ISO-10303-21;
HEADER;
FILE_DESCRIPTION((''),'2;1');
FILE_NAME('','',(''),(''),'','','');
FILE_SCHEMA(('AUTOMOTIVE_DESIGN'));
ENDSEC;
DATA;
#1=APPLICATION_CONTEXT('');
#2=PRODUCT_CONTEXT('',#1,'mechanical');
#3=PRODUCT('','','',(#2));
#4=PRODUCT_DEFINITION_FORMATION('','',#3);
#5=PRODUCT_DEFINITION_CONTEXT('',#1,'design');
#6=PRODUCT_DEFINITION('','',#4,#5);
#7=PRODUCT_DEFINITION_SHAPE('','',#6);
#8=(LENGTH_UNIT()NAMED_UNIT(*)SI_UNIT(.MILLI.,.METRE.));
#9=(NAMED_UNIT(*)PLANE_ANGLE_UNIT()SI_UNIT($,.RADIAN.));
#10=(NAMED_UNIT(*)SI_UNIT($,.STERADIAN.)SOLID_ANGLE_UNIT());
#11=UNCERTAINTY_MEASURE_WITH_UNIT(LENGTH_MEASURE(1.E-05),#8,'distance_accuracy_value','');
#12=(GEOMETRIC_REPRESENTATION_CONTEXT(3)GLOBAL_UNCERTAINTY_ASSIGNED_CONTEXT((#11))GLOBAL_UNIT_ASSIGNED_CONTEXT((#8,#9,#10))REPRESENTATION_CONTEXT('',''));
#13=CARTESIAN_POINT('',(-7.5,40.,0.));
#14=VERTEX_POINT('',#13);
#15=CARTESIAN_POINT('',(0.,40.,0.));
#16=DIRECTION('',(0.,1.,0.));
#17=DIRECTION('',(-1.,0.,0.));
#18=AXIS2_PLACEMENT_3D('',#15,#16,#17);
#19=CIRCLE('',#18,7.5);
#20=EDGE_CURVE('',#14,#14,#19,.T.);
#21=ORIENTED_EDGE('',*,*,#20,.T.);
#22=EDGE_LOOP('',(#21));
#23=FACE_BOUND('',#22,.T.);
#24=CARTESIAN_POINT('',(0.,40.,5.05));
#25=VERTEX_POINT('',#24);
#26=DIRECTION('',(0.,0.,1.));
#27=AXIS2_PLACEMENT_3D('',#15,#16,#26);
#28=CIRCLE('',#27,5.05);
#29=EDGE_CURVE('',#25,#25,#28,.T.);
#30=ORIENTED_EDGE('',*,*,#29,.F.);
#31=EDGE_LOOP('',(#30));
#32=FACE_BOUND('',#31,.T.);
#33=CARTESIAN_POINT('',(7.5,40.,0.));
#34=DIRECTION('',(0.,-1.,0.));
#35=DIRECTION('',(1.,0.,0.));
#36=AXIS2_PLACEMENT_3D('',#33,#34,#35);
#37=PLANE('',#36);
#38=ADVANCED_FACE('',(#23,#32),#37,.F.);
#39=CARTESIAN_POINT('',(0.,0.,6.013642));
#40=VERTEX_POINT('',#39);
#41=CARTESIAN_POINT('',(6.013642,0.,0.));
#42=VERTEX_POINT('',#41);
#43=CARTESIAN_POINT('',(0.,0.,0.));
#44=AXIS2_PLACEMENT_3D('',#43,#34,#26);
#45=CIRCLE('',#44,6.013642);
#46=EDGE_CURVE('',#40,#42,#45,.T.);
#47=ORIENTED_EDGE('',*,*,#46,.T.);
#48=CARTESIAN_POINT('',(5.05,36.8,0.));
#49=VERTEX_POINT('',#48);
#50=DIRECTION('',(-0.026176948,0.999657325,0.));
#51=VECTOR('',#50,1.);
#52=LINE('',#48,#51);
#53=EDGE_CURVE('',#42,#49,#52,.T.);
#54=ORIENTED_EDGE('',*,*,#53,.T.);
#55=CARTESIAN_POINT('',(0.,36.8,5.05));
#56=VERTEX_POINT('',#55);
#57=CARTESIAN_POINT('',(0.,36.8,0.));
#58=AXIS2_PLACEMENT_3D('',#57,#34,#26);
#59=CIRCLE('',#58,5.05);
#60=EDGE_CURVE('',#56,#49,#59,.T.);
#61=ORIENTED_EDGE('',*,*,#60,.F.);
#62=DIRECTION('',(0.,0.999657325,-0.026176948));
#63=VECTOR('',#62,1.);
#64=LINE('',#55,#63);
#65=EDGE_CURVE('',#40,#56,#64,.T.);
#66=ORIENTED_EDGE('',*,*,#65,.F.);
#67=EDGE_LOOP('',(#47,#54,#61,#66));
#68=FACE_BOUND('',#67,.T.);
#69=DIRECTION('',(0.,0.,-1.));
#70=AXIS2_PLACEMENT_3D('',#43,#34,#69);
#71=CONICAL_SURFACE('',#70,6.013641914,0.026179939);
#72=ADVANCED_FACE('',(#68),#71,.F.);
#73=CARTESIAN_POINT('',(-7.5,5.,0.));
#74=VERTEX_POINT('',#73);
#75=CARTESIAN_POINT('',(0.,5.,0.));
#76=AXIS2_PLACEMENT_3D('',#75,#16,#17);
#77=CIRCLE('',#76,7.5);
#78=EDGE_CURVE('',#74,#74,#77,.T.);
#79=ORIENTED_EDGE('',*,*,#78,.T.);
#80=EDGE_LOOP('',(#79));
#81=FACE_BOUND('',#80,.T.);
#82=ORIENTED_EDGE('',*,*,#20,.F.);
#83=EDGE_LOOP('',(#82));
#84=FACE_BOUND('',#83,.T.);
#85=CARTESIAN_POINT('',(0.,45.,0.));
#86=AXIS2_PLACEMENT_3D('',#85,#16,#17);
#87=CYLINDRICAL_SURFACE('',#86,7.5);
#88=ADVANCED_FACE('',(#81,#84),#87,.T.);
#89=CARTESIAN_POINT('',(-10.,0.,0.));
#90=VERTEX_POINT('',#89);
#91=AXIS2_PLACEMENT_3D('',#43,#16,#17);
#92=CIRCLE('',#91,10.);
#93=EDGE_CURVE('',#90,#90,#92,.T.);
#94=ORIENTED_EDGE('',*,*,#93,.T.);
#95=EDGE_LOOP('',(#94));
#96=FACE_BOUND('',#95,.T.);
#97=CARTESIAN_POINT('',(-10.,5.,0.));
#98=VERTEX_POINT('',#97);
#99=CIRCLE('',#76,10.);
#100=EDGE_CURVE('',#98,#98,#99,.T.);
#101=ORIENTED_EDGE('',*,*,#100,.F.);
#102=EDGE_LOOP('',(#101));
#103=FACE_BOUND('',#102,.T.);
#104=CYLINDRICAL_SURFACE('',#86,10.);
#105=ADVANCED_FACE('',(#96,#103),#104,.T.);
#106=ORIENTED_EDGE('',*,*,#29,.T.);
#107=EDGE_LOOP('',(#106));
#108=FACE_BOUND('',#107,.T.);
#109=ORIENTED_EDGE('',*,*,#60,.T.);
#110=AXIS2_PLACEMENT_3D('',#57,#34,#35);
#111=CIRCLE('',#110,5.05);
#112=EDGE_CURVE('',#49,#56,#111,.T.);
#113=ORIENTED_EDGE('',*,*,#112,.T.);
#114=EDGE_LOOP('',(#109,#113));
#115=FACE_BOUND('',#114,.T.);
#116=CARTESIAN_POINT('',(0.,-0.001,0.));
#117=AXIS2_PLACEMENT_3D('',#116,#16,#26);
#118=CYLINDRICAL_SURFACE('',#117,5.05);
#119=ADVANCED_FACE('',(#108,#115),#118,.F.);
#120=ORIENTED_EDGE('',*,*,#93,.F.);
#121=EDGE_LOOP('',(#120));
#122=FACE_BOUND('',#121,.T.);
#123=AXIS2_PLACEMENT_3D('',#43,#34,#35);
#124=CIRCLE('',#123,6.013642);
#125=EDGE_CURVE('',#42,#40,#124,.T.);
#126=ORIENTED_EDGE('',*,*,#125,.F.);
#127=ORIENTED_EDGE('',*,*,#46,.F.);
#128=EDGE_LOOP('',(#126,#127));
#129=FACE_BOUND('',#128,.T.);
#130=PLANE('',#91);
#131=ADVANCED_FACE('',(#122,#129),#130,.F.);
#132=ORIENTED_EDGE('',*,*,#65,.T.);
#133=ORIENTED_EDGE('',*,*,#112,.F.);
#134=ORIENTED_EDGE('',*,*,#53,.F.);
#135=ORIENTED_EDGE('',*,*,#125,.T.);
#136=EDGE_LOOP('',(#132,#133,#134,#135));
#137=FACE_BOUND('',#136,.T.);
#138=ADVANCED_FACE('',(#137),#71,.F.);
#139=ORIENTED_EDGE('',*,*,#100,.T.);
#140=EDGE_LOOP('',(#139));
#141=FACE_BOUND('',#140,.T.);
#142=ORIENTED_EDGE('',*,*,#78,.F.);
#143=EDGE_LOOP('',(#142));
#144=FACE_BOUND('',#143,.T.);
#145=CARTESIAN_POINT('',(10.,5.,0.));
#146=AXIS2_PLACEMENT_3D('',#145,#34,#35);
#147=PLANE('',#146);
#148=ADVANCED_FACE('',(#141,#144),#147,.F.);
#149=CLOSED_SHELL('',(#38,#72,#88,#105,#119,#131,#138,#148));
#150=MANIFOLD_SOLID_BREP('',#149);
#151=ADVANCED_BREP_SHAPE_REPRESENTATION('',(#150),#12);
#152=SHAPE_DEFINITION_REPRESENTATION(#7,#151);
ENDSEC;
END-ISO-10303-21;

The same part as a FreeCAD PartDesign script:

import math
import FreeCAD as App
import Part
import Sketcher
Q = App.Units.Quantity

doc = App.newDocument("Part")
params = doc.addObject("Spreadsheet::Sheet", "Params")
for row, (alias, value) in enumerate([
    ("sketch1_width", "10 mm"),
    ("sketch1_height", "5 mm"),
    ("sketch1_height2", "35 mm"),
    ("sketch1_width2", "2.5 mm"),
    ("revolution_angle", "360 deg"),
    ("sketch2_diameter", "10.1 mm"),
    ("sketch3_height", "36.8 mm"),
    ("sketch4_radius", "5.05 mm"),
], start=1):
    params.set(f"A{row}", alias)
    params.set(f"B{row}", "=" + value)
    params.setAlias(f"B{row}", alias)

body = doc.addObject("PartDesign::Body", "Body")

sketch1 = doc.addObject("Sketcher::SketchObject", "Sketch")
body.addObject(sketch1)
sketch1.AttachmentSupport = (doc.XY_Plane, [""])
sketch1.MapMode = "FlatFace"
sketch1.addGeometry([
    Part.LineSegment(App.Vector(0, 0, 0), App.Vector(10, 0, 0)),
    Part.LineSegment(App.Vector(10, 0, 0), App.Vector(10, 5, 0)),
    Part.LineSegment(App.Vector(10, 5, 0), App.Vector(7.5, 5, 0)),
    Part.LineSegment(App.Vector(7.5, 5, 0), App.Vector(7.5, 40, 0)),
    Part.LineSegment(App.Vector(7.5, 40, 0), App.Vector(0, 40, 0)),
    Part.LineSegment(App.Vector(0, 40, 0), App.Vector(0, 0, 0)),
], False)
sketch1.addConstraint([
    Sketcher.Constraint("Coincident", 0, 2, 1, 1),
    Sketcher.Constraint("Coincident", 1, 2, 2, 1),
    Sketcher.Constraint("Coincident", 2, 2, 3, 1),
    Sketcher.Constraint("Coincident", 3, 2, 4, 1),
    Sketcher.Constraint("Coincident", 4, 2, 5, 1),
    Sketcher.Constraint("Coincident", 5, 2, 0, 1),
    Sketcher.Constraint("Horizontal", 0),
    Sketcher.Constraint("Vertical", 1),
    Sketcher.Constraint("Horizontal", 2),
    Sketcher.Constraint("Vertical", 3),
    Sketcher.Constraint("Horizontal", 4),
    Sketcher.Constraint("Vertical", 5),
    Sketcher.Constraint("Coincident", 5, 2, -1, 1),
    Sketcher.Constraint("DistanceX", 0, 1, 0, 2, 10.0),
    Sketcher.Constraint("DistanceY", 1, 1, 1, 2, 5.0),
    Sketcher.Constraint("DistanceY", 3, 1, 3, 2, 35.0),
    Sketcher.Constraint("DistanceX", 2, 2, 2, 1, 2.5),
])
sketch1.setExpression("Constraints[13]", "Params.sketch1_width")
sketch1.setExpression("Constraints[14]", "Params.sketch1_height")
sketch1.setExpression("Constraints[15]", "Params.sketch1_height2")
sketch1.setExpression("Constraints[16]", "Params.sketch1_width2")
revolution = doc.addObject("PartDesign::Revolution", "Revolution")
body.addObject(revolution)
revolution.Profile = sketch1
revolution.ReferenceAxis = (sketch1, ["V_Axis"])
revolution.setExpression("Angle", "Params.revolution_angle")

sketch2 = doc.addObject("Sketcher::SketchObject", "Sketch001")
body.addObject(sketch2)
sketch2.AttachmentSupport = (doc.XZ_Plane, [""])
sketch2.MapMode = "FlatFace"
sketch2.AttachmentOffset = App.Placement(App.Vector(0, 0, -40), App.Rotation())
sketch2.addGeometry(Part.Circle(App.Vector(0, 0, 0), App.Vector(0, 0, 1), 5), False)
sketch2.addConstraint([
    Sketcher.Constraint("Coincident", 0, 3, -1, 1),
    Sketcher.Constraint("Diameter", 0, 10.1),
])
sketch2.setExpression("Constraints[1]", "Params.sketch2_diameter")
pocket1 = doc.addObject("PartDesign::Pocket", "Pocket")
body.addObject(pocket1)
pocket1.Profile = sketch2
pocket1.Type = "UpToFirst"
pocket1.Reversed = True

sketch3 = doc.addObject("Sketcher::SketchObject", "Sketch002")
body.addObject(sketch3)
sketch3.AttachmentSupport = (doc.XY_Plane, [""])
sketch3.MapMode = "FlatFace"
sketch3.addGeometry([
    Part.LineSegment(App.Vector(6, 0, 0), App.Vector(5, 36.8, 0)),
    Part.LineSegment(App.Vector(5, 36.8, 0), App.Vector(5, 0, 0)),
    Part.LineSegment(App.Vector(5, 0, 0), App.Vector(6, 0, 0)),
], False)
sketch3.addConstraint([
    Sketcher.Constraint("Coincident", 0, 2, 1, 1),
    Sketcher.Constraint("Coincident", 1, 2, 2, 1),
    Sketcher.Constraint("Coincident", 2, 2, 0, 1),
    Sketcher.Constraint("Vertical", 1),
    Sketcher.Constraint("Horizontal", 2),
    Sketcher.Constraint("PointOnObject", 1, 2, -1),
    Sketcher.Constraint("DistanceY", 1, 2, 1, 1, 36.8),
    Sketcher.Constraint("Angle", 0, Q("91.5 deg")),
    Sketcher.Constraint("DistanceX", -1, 1, 0, 2, 5.05),
])
sketch3.setExpression("Constraints[6]", "Params.sketch3_height")

sketch4 = doc.addObject("Sketcher::SketchObject", "Sketch003")
body.addObject(sketch4)
sketch4.AttachmentSupport = (doc.XZ_Plane, [""])
sketch4.MapMode = "FlatFace"
sketch4.AttachmentOffset = App.Placement(App.Vector(0, 0, -40), App.Rotation())
sketch4.addGeometry([
    Part.ArcOfCircle(Part.Circle(App.Vector(0, 0, 0), App.Vector(0, 0, 1), 5), math.radians(0), math.radians(90)),
    Part.ArcOfCircle(Part.Circle(App.Vector(0, 0, 0), App.Vector(0, 0, 1), 5), math.radians(-90), math.radians(0)),
    Part.ArcOfCircle(Part.Circle(App.Vector(0, 0, 0), App.Vector(0, 0, 1), 5), math.radians(180), math.radians(270)),
    Part.ArcOfCircle(Part.Circle(App.Vector(0, 0, 0), App.Vector(0, 0, 1), 5), math.radians(90), math.radians(180)),
], False)
sketch4.addConstraint([
    Sketcher.Constraint("Tangent", 0, 1, 1, 2),
    Sketcher.Constraint("Tangent", 1, 1, 2, 2),
    Sketcher.Constraint("Tangent", 2, 1, 3, 2),
    Sketcher.Constraint("Tangent", 3, 1, 0, 2),
    Sketcher.Constraint("Coincident", 0, 3, -1, 1),
    Sketcher.Constraint("Equal", 0, 1),
    Sketcher.Constraint("PointOnObject", 0, 1, -1),
    Sketcher.Constraint("PointOnObject", 1, 1, -2),
    Sketcher.Constraint("PointOnObject", 2, 1, -1),
    Sketcher.Constraint("PointOnObject", 3, 1, -2),
    Sketcher.Constraint("Radius", 0, 5.05),
])
sketch4.setExpression("Constraints[10]", "Params.sketch4_radius")
doc.recompute()

subtractivepipe = doc.addObject("PartDesign::SubtractivePipe", "SubtractivePipe")
body.addObject(subtractivepipe)
subtractivepipe.Profile = sketch3
subtractivepipe.Spine = (sketch4, ["Edge1", "Edge2", "Edge3", "Edge4"])

doc.recompute()
